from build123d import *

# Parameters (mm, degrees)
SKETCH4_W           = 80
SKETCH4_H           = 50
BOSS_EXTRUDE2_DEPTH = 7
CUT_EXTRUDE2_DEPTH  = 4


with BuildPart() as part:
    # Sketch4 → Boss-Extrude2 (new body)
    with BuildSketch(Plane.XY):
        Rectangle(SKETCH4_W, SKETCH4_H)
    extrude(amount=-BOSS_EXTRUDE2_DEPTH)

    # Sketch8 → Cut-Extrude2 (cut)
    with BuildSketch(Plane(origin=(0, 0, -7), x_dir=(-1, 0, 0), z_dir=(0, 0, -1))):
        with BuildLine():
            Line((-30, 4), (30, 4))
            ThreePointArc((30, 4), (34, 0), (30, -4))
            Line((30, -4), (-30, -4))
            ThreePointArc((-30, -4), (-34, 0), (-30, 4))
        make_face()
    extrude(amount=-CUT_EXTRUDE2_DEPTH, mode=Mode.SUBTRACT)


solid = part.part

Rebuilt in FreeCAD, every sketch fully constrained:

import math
import FreeCAD as App
import Part
import Sketcher
from FreeCAD import Vector
Q = App.Units.Quantity

doc = App.newDocument("Part")
body = doc.addObject("PartDesign::Body", "Body")

# Sketch on XY plane
sketch1 = doc.addObject("Sketcher::SketchObject", "Sketch")
body.addObject(sketch1)
sketch1.AttachmentSupport = (doc.XY_Plane, [""])
sketch1.MapMode = "FlatFace"
sketch1.addGeometry([
    Part.LineSegment(Vector(-40, 25, 0), Vector(-40, -25, 0)),
    Part.LineSegment(Vector(-40, -25, 0), Vector(40, -25, 0)),
    Part.LineSegment(Vector(40, -25, 0), Vector(40, 25, 0)),
    Part.LineSegment(Vector(40, 25, 0), Vector(-40, 25, 0)),
], False)
sketch1.addConstraint([
    Sketcher.Constraint("Coincident", 0, 2, 1, 1),
    Sketcher.Constraint("Coincident", 1, 2, 2, 1),
    Sketcher.Constraint("Coincident", 2, 2, 3, 1),
    Sketcher.Constraint("Coincident", 3, 2, 0, 1),
    Sketcher.Constraint("Vertical", 0),
    Sketcher.Constraint("Horizontal", 1),
    Sketcher.Constraint("Vertical", 2),
    Sketcher.Constraint("Horizontal", 3),
    Sketcher.Constraint("Symmetric", 0, 2, 2, 2, -1, 1),
    Sketcher.Constraint("DistanceX", 1, 1, 1, 2, Q("80 mm")),
    Sketcher.Constraint("DistanceY", 0, 2, 0, 1, Q("50 mm")),
])
pad1 = doc.addObject("PartDesign::Pad", "Pad")
body.addObject(pad1)
pad1.Profile = sketch1
pad1.Length = 7
pad1.Reversed = True

# Sketch on XY plane
sketch2 = doc.addObject("Sketcher::SketchObject", "Sketch001")
body.addObject(sketch2)
sketch2.AttachmentSupport = (doc.XY_Plane, [""])
sketch2.MapMode = "FlatFace"
sketch2.AttachmentOffset = App.Placement(Vector(0, 0, -7), App.Rotation())
sketch2.addGeometry([
    Part.LineSegment(Vector(-30, 4, 0), Vector(30, 4, 0)),
    Part.ArcOfCircle(Part.Circle(Vector(30, 0, 0), Vector(0, 0, 1), 4), math.radians(-90), math.radians(90)),
    Part.LineSegment(Vector(30, -4, 0), Vector(-30, -4, 0)),
    Part.ArcOfCircle(Part.Circle(Vector(-30, 0, 0), Vector(0, 0, 1), 4), math.radians(90), math.radians(270)),
], False)
sketch2.addConstraint([
    Sketcher.Constraint("Tangent", 0, 2, 1, 2),
    Sketcher.Constraint("Tangent", 1, 1, 2, 1),
    Sketcher.Constraint("Tangent", 2, 2, 3, 2),
    Sketcher.Constraint("Tangent", 3, 1, 0, 1),
    Sketcher.Constraint("Horizontal", 0),
    Sketcher.Constraint("Horizontal", 2),
    Sketcher.Constraint("Symmetric", 1, 3, 3, 3, -1, 1),
    Sketcher.Constraint("Radius", 1, Q("4 mm")),
    Sketcher.Constraint("DistanceX", 0, 1, 0, 2, Q("60 mm")),
])
pocket1 = doc.addObject("PartDesign::Pocket", "Pocket")
body.addObject(pocket1)
pocket1.Profile = sketch2
pocket1.Length = 4
pocket1.Reversed = True

doc.recompute()
